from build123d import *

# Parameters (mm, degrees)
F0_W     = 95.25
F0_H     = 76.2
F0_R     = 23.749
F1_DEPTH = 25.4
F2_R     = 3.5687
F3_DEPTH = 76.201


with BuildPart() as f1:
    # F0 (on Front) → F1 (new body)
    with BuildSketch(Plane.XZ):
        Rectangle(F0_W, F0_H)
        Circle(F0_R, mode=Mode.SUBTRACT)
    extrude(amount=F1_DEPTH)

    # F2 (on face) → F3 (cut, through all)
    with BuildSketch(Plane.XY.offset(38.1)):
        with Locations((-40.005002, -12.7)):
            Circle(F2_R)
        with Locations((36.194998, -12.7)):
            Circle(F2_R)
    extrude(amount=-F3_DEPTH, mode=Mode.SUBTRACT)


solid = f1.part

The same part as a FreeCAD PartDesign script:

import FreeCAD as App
import Part
import Sketcher
Q = App.Units.Quantity

doc = App.newDocument("Part")
body = doc.addObject("PartDesign::Body", "Body")

# Sketch on XZ plane
sketch1 = body.newObject("Sketcher::SketchObject", "Sketch")
sketch1.AttachmentSupport = (doc.getObject("XZ_Plane"), [""])
sketch1.MapMode = "FlatFace"
sketch1.addGeometry([
    Part.LineSegment(App.Vector(-47.625, 38.1, 0), App.Vector(-47.625, -38.1, 0)),  # 0
    Part.LineSegment(App.Vector(-47.625, -38.1, 0), App.Vector(47.625, -38.1, 0)),  # 1
    Part.LineSegment(App.Vector(47.625, -38.1, 0), App.Vector(47.625, 38.1, 0)),  # 2
    Part.LineSegment(App.Vector(47.625, 38.1, 0), App.Vector(-47.625, 38.1, 0)),  # 3
    Part.Circle(App.Vector(0, 0, 0), App.Vector(0, 0, 1), 23.749),  # 4
], False)
sketch1.addConstraint([
    Sketcher.Constraint("Coincident", 0, 2, 1, 1),
    Sketcher.Constraint("Coincident", 1, 2, 2, 1),
    Sketcher.Constraint("Coincident", 2, 2, 3, 1),
    Sketcher.Constraint("Coincident", 3, 2, 0, 1),
    Sketcher.Constraint("Vertical", 0),
    Sketcher.Constraint("Horizontal", 1),
    Sketcher.Constraint("Vertical", 2),
    Sketcher.Constraint("Horizontal", 3),
    Sketcher.Constraint("Coincident", 4, 3, -1, 1),
    Sketcher.Constraint("Symmetric", 0, 2, 2, 2, -1, 1),
    Sketcher.Constraint("Diameter", 4, Q("1.87 in")),
    Sketcher.Constraint("DistanceY", 0, 2, 0, 1, Q("3 in")),
    Sketcher.Constraint("DistanceX", 1, 1, 1, 2, Q("3.75 in")),
])
pad1 = body.newObject("PartDesign::Pad", "Pad")
pad1.Profile = sketch1
pad1.Length = Q("1 in")

# Sketch on XY plane
sketch2 = body.newObject("Sketcher::SketchObject", "Sketch001")
sketch2.AttachmentSupport = (doc.getObject("XY_Plane"), [""])
sketch2.MapMode = "FlatFace"
sketch2.AttachmentOffset = App.Placement(App.Vector(0, 0, 1.5 * 25.4), App.Rotation())
sketch2.addGeometry([
    Part.Circle(App.Vector(-40.005002, -12.7, 0), App.Vector(0, 0, 1), 3.5687),
    Part.Circle(App.Vector(36.194998, -12.7, 0), App.Vector(0, 0, 1), 3.5687),
], False)
sketch2.addConstraint([
    Sketcher.Constraint("Equal", 0, 1),
    Sketcher.Constraint("Horizontal", 0, 3, 1, 3),
    Sketcher.Constraint("Diameter", 0, Q("0.281 in")),
    Sketcher.Constraint("DistanceX", 0, 3, 1, 3, Q("3 in")),
    Sketcher.Constraint("DistanceY", 0, 3, -1, 1, Q("0.5 in")),
    Sketcher.Constraint("DistanceX", 0, 3, -1, 1, Q("1.5750001 in")),
])
pocket1 = body.newObject("PartDesign::Pocket", "Pocket")
pocket1.Profile = sketch2
pocket1.Type = "ThroughAll"

doc.recompute()
